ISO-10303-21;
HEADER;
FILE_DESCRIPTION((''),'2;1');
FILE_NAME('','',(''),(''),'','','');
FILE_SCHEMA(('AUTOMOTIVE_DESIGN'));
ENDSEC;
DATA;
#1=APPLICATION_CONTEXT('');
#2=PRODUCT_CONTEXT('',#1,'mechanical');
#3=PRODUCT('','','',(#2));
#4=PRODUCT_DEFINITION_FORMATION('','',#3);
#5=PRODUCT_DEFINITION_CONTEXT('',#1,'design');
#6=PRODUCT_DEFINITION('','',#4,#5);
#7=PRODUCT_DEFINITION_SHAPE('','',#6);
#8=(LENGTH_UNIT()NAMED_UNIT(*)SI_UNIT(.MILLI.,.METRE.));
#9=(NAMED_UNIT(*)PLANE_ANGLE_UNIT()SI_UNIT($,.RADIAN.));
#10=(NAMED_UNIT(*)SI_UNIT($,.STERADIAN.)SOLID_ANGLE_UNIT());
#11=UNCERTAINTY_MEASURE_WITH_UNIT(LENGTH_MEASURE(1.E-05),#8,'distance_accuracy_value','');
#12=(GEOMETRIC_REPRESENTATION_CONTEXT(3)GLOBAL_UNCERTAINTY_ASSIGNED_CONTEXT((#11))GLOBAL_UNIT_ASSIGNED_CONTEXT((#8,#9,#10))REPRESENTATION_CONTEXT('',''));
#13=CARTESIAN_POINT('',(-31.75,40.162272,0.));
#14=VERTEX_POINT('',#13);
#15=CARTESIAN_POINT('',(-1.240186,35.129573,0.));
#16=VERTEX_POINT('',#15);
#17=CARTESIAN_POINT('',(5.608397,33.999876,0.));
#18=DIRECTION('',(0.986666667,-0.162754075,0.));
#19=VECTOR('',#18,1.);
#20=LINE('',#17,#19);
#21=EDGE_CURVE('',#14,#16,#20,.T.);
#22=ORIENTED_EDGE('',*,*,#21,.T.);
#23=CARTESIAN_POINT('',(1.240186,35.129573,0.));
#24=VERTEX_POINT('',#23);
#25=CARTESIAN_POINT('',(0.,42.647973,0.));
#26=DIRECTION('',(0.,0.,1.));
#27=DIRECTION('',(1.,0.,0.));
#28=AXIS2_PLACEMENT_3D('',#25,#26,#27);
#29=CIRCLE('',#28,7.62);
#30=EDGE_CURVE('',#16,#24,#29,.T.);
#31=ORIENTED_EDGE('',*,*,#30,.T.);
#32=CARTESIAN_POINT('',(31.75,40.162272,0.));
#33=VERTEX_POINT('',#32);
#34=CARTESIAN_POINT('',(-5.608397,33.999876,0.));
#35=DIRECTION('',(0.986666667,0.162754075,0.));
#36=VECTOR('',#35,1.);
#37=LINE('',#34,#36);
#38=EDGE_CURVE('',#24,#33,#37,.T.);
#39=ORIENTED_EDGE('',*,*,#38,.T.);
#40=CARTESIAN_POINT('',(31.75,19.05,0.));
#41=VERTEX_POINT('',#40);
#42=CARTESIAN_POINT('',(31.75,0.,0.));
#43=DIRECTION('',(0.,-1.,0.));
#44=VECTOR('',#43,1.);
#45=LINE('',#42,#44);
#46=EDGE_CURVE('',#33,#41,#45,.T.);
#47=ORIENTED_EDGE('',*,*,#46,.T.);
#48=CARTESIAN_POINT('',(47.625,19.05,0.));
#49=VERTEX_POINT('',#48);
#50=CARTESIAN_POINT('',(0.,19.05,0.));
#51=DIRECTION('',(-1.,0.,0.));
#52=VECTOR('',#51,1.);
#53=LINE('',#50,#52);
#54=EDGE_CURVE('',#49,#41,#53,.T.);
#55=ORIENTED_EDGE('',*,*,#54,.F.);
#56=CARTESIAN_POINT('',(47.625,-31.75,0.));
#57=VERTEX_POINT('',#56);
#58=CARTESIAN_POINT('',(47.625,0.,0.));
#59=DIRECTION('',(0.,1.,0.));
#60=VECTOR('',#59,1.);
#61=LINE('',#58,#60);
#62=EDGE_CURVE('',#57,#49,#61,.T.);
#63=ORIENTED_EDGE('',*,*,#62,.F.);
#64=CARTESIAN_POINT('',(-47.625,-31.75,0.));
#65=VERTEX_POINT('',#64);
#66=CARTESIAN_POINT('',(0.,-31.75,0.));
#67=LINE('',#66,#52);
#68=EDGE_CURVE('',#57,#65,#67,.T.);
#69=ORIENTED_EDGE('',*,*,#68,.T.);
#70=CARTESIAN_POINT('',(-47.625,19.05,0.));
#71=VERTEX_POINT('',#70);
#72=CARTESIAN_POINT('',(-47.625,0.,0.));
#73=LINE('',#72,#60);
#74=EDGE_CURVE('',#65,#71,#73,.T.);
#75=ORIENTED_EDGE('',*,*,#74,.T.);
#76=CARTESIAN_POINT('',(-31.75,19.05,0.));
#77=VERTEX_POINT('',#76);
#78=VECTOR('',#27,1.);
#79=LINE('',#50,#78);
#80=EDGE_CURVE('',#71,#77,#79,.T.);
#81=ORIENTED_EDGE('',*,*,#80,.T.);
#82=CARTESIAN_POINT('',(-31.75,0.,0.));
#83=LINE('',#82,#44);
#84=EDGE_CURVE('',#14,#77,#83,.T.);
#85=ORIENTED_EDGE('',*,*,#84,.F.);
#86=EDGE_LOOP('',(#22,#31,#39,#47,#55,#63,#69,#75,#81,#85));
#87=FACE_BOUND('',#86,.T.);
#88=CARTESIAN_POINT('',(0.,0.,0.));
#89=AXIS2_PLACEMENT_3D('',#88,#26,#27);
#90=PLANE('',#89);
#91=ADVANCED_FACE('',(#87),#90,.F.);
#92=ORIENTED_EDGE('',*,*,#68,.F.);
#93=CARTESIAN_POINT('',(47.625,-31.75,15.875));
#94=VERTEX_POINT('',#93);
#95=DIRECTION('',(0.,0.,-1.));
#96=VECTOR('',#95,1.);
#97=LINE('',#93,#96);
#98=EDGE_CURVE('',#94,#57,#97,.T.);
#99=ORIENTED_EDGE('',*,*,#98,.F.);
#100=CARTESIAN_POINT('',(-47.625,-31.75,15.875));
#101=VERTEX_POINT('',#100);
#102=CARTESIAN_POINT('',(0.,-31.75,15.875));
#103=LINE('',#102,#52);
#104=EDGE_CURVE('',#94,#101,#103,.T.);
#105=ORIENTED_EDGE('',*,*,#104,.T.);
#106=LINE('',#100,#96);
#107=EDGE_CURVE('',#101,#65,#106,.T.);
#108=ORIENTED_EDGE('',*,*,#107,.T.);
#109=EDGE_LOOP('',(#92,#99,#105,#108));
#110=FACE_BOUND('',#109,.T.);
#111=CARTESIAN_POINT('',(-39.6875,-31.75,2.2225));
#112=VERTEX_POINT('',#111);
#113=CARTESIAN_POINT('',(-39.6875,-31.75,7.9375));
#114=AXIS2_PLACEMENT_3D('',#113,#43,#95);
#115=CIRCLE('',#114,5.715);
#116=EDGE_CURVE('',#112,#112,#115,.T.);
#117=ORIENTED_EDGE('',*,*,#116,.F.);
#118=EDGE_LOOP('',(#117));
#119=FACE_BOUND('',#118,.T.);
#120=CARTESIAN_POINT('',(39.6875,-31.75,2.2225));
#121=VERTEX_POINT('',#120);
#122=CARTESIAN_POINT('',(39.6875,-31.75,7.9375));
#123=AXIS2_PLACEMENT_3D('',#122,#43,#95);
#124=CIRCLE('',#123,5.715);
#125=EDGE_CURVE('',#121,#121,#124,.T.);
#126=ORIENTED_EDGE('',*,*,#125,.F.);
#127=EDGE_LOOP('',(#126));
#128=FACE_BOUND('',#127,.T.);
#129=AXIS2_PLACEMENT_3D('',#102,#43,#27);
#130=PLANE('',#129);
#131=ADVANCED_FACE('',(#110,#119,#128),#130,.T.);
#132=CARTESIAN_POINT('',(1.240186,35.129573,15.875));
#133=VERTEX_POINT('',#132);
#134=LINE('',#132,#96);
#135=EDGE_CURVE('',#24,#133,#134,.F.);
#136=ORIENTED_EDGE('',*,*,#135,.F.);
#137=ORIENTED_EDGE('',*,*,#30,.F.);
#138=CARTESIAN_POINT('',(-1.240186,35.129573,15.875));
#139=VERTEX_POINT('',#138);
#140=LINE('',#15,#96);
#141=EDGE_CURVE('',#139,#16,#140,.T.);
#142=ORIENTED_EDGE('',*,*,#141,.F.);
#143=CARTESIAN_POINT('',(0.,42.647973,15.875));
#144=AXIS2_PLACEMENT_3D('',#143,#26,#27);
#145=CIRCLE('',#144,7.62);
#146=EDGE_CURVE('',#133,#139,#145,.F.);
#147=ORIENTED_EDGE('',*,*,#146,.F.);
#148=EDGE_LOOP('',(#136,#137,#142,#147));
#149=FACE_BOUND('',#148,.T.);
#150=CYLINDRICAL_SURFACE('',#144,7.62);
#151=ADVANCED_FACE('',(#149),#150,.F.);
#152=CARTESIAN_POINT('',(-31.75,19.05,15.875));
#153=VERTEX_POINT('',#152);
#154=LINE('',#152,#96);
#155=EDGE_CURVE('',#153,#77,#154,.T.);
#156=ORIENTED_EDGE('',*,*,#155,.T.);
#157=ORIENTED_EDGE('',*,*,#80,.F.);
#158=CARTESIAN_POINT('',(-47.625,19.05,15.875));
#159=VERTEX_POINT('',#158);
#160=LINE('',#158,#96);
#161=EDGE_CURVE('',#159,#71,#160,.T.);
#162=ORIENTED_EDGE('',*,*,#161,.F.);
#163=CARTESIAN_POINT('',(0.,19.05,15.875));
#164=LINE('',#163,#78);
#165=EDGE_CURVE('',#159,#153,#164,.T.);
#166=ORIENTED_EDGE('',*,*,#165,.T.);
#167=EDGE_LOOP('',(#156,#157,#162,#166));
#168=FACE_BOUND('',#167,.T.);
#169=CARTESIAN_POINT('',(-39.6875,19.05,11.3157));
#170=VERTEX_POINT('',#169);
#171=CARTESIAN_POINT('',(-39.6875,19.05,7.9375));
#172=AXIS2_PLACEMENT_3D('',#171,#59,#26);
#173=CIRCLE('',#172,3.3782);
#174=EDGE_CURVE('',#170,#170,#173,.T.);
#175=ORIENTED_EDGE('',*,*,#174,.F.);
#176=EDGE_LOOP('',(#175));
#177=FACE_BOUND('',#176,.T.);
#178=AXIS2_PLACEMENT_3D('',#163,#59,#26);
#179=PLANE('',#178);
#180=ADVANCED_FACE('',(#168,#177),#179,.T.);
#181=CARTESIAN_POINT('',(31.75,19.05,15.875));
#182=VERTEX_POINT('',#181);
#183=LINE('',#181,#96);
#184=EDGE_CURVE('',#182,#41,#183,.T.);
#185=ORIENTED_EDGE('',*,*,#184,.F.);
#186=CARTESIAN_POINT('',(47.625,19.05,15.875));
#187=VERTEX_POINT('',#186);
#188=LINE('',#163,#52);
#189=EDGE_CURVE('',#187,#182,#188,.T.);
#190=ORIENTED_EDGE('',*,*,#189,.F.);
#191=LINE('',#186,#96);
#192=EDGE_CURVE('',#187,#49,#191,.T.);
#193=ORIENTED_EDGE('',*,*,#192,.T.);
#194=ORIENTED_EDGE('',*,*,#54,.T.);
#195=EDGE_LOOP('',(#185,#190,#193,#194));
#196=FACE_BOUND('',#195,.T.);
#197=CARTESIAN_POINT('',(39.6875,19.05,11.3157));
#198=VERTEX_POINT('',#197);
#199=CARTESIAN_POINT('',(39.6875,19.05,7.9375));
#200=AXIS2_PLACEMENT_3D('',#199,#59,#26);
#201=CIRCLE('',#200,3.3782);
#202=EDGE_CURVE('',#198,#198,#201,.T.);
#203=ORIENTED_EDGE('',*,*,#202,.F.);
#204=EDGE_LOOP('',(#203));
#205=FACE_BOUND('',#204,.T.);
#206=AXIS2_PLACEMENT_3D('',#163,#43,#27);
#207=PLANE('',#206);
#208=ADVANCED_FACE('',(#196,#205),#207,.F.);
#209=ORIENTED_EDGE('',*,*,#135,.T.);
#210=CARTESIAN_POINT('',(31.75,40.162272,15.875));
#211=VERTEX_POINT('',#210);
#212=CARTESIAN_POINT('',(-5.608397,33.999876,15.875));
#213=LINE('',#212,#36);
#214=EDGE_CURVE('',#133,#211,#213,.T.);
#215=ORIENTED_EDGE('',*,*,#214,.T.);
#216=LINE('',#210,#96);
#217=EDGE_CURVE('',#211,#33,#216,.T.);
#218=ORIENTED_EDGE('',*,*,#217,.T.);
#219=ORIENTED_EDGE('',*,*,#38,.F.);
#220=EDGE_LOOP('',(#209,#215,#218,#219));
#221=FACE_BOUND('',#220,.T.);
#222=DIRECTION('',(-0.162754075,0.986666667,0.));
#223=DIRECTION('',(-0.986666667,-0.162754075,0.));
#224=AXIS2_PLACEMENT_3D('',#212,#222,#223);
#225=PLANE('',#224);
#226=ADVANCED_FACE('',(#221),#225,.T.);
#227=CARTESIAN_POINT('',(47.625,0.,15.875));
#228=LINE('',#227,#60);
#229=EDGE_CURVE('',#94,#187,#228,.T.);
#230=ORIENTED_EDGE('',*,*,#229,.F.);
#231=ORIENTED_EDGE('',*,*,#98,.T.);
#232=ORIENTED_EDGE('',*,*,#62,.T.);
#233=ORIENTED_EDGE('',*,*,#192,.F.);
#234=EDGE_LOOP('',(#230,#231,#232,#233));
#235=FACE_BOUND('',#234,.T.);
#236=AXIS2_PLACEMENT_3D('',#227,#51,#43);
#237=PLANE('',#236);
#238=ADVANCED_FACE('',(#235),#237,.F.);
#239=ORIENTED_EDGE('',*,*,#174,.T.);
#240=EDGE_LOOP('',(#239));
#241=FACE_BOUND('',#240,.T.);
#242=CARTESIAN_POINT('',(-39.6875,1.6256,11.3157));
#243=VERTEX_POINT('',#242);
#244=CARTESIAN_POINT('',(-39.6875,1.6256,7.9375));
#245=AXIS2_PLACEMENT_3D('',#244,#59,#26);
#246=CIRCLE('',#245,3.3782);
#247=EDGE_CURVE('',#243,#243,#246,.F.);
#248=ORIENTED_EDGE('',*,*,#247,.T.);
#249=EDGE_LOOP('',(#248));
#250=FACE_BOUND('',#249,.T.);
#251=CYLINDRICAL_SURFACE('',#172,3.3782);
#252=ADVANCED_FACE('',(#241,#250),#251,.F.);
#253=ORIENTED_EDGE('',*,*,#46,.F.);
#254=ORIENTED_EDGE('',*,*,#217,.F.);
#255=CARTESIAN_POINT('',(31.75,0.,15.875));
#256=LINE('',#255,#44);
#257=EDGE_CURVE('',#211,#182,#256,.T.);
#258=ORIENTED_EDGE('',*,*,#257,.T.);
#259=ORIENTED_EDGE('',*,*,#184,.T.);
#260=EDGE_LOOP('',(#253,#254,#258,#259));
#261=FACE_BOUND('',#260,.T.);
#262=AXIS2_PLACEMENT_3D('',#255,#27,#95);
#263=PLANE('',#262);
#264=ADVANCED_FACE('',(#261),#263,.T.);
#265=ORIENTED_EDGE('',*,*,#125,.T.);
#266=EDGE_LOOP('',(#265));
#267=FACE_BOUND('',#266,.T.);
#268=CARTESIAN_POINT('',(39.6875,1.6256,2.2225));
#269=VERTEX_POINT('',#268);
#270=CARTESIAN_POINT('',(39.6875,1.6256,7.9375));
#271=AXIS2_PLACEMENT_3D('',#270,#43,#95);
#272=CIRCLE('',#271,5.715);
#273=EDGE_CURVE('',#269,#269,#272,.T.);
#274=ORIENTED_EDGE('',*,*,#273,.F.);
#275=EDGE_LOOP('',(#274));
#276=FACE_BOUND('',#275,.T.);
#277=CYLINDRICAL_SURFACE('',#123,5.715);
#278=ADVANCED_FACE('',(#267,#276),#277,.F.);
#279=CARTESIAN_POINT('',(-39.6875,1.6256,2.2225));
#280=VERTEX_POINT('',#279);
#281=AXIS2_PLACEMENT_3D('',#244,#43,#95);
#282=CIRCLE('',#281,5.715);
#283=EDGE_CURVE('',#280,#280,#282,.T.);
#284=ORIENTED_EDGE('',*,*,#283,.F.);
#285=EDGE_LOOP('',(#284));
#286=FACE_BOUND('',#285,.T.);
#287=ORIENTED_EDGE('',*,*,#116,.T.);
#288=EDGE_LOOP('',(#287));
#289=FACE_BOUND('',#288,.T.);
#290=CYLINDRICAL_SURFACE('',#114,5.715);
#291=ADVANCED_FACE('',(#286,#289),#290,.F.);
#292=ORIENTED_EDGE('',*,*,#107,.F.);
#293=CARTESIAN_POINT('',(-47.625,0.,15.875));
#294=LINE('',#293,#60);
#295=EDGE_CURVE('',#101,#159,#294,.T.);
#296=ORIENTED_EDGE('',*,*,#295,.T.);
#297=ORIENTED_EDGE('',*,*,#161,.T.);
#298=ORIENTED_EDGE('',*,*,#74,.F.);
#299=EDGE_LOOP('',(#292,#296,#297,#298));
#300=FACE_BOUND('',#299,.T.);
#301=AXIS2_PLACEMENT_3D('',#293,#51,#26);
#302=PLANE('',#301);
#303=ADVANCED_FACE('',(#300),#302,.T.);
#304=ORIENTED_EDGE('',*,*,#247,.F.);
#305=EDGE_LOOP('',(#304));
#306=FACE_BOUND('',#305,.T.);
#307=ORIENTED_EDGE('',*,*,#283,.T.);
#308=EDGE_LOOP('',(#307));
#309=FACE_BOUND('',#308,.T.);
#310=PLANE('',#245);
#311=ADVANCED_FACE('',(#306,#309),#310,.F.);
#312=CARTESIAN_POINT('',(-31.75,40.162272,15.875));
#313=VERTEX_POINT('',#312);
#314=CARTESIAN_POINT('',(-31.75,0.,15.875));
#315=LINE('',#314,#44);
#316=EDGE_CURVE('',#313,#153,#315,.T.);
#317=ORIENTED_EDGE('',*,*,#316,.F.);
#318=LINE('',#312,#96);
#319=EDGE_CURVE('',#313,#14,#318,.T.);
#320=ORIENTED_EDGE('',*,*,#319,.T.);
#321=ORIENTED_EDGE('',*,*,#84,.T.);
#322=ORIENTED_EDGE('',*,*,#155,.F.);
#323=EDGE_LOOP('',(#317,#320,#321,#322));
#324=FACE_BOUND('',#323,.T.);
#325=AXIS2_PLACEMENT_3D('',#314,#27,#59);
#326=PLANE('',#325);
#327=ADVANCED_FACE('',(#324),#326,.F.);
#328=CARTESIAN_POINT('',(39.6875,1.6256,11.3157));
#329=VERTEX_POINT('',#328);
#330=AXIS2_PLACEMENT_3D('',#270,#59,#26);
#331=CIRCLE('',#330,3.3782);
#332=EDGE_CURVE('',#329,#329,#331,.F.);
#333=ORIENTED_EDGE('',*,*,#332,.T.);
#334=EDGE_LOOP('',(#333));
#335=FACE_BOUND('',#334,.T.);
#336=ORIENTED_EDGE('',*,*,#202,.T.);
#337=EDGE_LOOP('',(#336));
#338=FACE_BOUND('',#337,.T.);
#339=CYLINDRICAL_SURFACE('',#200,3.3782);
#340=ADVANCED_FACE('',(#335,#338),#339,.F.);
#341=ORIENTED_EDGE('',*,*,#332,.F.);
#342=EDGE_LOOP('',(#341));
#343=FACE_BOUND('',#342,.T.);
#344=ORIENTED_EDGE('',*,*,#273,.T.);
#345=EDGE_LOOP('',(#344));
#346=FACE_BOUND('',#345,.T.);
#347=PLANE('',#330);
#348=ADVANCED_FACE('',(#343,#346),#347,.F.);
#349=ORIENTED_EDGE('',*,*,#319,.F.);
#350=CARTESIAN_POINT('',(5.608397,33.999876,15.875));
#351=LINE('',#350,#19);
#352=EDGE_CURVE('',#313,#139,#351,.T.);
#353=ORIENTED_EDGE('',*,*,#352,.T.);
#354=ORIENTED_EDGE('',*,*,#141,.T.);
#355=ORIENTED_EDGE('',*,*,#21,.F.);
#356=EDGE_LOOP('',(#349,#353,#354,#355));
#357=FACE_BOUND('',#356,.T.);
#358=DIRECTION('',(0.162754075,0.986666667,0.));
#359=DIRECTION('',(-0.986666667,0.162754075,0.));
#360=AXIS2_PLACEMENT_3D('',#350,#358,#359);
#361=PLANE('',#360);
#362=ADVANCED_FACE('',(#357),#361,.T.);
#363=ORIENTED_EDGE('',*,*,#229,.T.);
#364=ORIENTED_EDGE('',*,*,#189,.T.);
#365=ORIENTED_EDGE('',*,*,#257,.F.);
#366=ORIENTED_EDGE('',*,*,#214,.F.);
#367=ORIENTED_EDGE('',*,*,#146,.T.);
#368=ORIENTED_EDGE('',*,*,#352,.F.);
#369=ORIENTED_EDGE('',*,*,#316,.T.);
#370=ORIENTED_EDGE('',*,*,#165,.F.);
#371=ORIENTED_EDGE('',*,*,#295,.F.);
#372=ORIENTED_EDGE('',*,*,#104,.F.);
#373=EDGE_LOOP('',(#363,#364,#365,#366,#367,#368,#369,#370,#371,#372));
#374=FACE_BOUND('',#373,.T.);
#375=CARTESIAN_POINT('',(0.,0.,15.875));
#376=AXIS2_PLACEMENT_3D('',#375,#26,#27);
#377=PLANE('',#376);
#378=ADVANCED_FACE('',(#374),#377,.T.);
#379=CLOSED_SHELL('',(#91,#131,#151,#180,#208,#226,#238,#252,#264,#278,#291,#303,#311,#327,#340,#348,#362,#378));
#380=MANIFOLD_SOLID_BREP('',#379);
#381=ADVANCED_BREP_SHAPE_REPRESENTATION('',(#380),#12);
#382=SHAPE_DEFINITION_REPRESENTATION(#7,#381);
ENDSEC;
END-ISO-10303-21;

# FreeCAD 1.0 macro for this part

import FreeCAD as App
import Part
import Sketcher
from FreeCAD import Vector
Q = App.Units.Quantity


def edges_at(feature, points):
    """Names of the edges that pass closest to the given points."""
    edges = feature.Shape.Edges
    near = lambda p: min(range(len(edges)), key=lambda i: edges[i].distToShape(Part.Vertex(*p))[0])
    return sorted({f"Edge{near(p) + 1}" for p in points})

doc = App.newDocument("Part")
body = doc.addObject("PartDesign::Body", "Body")

sketch1 = body.newObject("Sketcher::SketchObject", "Sketch")
sketch1.AttachmentSupport = (doc.getObject("XY_Plane"), [""])
sketch1.MapMode = "FlatFace"
sketch1.addGeometry([
    Part.LineSegment(Vector(-32, 19, 0), Vector(-48, 19, 0)),
    Part.LineSegment(Vector(-48, 19, 0), Vector(-48, -32, 0)),
    Part.LineSegment(Vector(-48, -32, 0), Vector(48, -32, 0)),
    Part.LineSegment(Vector(48, -32, 0), Vector(48, 19, 0)),
    Part.LineSegment(Vector(48, 19, 0), Vector(32, 19, 0)),
    Part.LineSegment(Vector(32, 19, 0), Vector(32, 40, 0)),
    Part.LineSegment(Vector(32, 40, 0), Vector(19, 38, 0)),
    Part.LineSegment(Vector(19, 38, 0), Vector(0, 35, 0)),
    Part.LineSegment(Vector(0, 35, 0), Vector(-19, 38, 0)),
    Part.LineSegment(Vector(-19, 38, 0), Vector(-32, 40, 0)),
    Part.LineSegment(Vector(-32, 40, 0), Vector(-32, 19, 0)),
], False)
sketch1.addConstraint([
    Sketcher.Constraint("Coincident", 0, 2, 1, 1),
    Sketcher.Constraint("Coincident", 1, 2, 2, 1),
    Sketcher.Constraint("Coincident", 2, 2, 3, 1),
    Sketcher.Constraint("Coincident", 3, 2, 4, 1),
    Sketcher.Constraint("Coincident", 4, 2, 5, 1),
    Sketcher.Constraint("Coincident", 5, 2, 6, 1),
    Sketcher.Constraint("Coincident", 6, 2, 7, 1),
    Sketcher.Constraint("Coincident", 7, 2, 8, 1),
    Sketcher.Constraint("Coincident", 8, 2, 9, 1),
    Sketcher.Constraint("Coincident", 9, 2, 10, 1),
    Sketcher.Constraint("Coincident", 10, 2, 0, 1),
    Sketcher.Constraint("Horizontal", 0),
    Sketcher.Constraint("Vertical", 1),
    Sketcher.Constraint("Horizontal", 2),
    Sketcher.Constraint("Vertical", 3),
    Sketcher.Constraint("Horizontal", 4),
    Sketcher.Constraint("Vertical", 5),
    Sketcher.Constraint("Vertical", 10),
    Sketcher.Constraint("Symmetric", 0, 2, 3, 2, -2),
    Sketcher.Constraint("Symmetric", 6, 2, 8, 2, -2),
    Sketcher.Constraint("Symmetric", 5, 2, 9, 2, -2),
    Sketcher.Constraint("PointOnObject", 7, 2, -2),
    Sketcher.Constraint("Parallel", 6, 7),
    Sketcher.Constraint("DistanceY", 1, 2, 1, 1, Q("2 in")),
    Sketcher.Constraint("DistanceX", 2, 1, 2, 2, Q("3.75 in")),
    Sketcher.Constraint("DistanceX", 9, 2, 5, 2, Q("2.5 in")),
    Sketcher.Constraint("DistanceY", -1, 1, 0, 2, Q("0.75 in")),
    Sketcher.Constraint("DistanceY", -1, 1, 7, 2, Q("1.375 in")),
    Sketcher.Constraint("Distance", 8, 19.377909),
    Sketcher.Constraint("DistanceY", 5, 1, 5, 2, 21.112272),
])
pad1 = body.newObject("PartDesign::Pad", "Pad")
pad1.Profile = sketch1
pad1.Length = Q("0.625 in")

sketch2 = body.newObject("Sketcher::SketchObject", "Sketch001")
sketch2.AttachmentSupport = (doc.getObject("XZ_Plane"), [""])
sketch2.MapMode = "FlatFace"
sketch2.AttachmentOffset = App.Placement(Vector(0, 0, -0.75 * 25.4), App.Rotation())
sketch2.addGeometry([
    Part.Circle(Vector(-39.7, 7.9, 0), Vector(0, 0, 1), 3.4),
    Part.Circle(Vector(39.7, 7.9, 0), Vector(0, 0, 1), 3.4),
], False)
sketch2.addConstraint([
    Sketcher.Constraint("Equal", 0, 1),
    Sketcher.Constraint("Symmetric", 0, 3, 1, 3, -2),
    Sketcher.Constraint("Diameter", 0, Q("0.266 in")),
    Sketcher.Constraint("DistanceX", 0, 3, -1, 1, Q("1.5625 in")),
    Sketcher.Constraint("DistanceY", -1, 1, 0, 3, Q("0.3125 in")),
])
doc.recompute()
hole = body.newObject("PartDesign::Hole", "Hole")
hole.Profile = sketch2
hole.ThreadType = "None"
hole.Diameter = Q("0.266 in")
hole.DepthType = "ThroughAll"
hole.Reversed = True

sketch3 = body.newObject("Sketcher::SketchObject", "Sketch002")
sketch3.AttachmentSupport = (doc.getObject("XZ_Plane"), [""])
sketch3.MapMode = "FlatFace"
sketch3.AttachmentOffset = App.Placement(Vector(0, 0, 1.25 * 25.4), App.Rotation())
sketch3.addGeometry([
    Part.Circle(Vector(40, 8, 0), Vector(0, 0, 1), 6),
    Part.Circle(Vector(-40, 8, 0), Vector(0, 0, 1), 6),
], False)
sketch3.addConstraint([
    Sketcher.Constraint("Equal", 0, 1),
    Sketcher.Constraint("Symmetric", 0, 3, 1, 3, -2),
    Sketcher.Constraint("Diameter", 0, Q("0.45 in")),
    Sketcher.Constraint("DistanceX", -1, 1, 0, 3, Q("1.5625 in")),
    Sketcher.Constraint("DistanceY", -1, 1, 0, 3, Q("0.3125 in")),
])
doc.recompute()
hole2 = body.newObject("PartDesign::Hole", "Hole001")
hole2.Profile = sketch3
hole2.ThreadType = "None"
hole2.Diameter = Q("0.45 in")
hole2.DepthType = "Dimension"
hole2.Depth = Q("1.314 in")
hole2.DrillPoint = "Flat"
doc.recompute()

fillet = body.newObject("PartDesign::Fillet", "Fillet")
fillet.Base = (hole2, edges_at(hole2, [(0, 34.925, 7.938)]))
fillet.Radius = Q("0.3 in")

doc.recompute()
